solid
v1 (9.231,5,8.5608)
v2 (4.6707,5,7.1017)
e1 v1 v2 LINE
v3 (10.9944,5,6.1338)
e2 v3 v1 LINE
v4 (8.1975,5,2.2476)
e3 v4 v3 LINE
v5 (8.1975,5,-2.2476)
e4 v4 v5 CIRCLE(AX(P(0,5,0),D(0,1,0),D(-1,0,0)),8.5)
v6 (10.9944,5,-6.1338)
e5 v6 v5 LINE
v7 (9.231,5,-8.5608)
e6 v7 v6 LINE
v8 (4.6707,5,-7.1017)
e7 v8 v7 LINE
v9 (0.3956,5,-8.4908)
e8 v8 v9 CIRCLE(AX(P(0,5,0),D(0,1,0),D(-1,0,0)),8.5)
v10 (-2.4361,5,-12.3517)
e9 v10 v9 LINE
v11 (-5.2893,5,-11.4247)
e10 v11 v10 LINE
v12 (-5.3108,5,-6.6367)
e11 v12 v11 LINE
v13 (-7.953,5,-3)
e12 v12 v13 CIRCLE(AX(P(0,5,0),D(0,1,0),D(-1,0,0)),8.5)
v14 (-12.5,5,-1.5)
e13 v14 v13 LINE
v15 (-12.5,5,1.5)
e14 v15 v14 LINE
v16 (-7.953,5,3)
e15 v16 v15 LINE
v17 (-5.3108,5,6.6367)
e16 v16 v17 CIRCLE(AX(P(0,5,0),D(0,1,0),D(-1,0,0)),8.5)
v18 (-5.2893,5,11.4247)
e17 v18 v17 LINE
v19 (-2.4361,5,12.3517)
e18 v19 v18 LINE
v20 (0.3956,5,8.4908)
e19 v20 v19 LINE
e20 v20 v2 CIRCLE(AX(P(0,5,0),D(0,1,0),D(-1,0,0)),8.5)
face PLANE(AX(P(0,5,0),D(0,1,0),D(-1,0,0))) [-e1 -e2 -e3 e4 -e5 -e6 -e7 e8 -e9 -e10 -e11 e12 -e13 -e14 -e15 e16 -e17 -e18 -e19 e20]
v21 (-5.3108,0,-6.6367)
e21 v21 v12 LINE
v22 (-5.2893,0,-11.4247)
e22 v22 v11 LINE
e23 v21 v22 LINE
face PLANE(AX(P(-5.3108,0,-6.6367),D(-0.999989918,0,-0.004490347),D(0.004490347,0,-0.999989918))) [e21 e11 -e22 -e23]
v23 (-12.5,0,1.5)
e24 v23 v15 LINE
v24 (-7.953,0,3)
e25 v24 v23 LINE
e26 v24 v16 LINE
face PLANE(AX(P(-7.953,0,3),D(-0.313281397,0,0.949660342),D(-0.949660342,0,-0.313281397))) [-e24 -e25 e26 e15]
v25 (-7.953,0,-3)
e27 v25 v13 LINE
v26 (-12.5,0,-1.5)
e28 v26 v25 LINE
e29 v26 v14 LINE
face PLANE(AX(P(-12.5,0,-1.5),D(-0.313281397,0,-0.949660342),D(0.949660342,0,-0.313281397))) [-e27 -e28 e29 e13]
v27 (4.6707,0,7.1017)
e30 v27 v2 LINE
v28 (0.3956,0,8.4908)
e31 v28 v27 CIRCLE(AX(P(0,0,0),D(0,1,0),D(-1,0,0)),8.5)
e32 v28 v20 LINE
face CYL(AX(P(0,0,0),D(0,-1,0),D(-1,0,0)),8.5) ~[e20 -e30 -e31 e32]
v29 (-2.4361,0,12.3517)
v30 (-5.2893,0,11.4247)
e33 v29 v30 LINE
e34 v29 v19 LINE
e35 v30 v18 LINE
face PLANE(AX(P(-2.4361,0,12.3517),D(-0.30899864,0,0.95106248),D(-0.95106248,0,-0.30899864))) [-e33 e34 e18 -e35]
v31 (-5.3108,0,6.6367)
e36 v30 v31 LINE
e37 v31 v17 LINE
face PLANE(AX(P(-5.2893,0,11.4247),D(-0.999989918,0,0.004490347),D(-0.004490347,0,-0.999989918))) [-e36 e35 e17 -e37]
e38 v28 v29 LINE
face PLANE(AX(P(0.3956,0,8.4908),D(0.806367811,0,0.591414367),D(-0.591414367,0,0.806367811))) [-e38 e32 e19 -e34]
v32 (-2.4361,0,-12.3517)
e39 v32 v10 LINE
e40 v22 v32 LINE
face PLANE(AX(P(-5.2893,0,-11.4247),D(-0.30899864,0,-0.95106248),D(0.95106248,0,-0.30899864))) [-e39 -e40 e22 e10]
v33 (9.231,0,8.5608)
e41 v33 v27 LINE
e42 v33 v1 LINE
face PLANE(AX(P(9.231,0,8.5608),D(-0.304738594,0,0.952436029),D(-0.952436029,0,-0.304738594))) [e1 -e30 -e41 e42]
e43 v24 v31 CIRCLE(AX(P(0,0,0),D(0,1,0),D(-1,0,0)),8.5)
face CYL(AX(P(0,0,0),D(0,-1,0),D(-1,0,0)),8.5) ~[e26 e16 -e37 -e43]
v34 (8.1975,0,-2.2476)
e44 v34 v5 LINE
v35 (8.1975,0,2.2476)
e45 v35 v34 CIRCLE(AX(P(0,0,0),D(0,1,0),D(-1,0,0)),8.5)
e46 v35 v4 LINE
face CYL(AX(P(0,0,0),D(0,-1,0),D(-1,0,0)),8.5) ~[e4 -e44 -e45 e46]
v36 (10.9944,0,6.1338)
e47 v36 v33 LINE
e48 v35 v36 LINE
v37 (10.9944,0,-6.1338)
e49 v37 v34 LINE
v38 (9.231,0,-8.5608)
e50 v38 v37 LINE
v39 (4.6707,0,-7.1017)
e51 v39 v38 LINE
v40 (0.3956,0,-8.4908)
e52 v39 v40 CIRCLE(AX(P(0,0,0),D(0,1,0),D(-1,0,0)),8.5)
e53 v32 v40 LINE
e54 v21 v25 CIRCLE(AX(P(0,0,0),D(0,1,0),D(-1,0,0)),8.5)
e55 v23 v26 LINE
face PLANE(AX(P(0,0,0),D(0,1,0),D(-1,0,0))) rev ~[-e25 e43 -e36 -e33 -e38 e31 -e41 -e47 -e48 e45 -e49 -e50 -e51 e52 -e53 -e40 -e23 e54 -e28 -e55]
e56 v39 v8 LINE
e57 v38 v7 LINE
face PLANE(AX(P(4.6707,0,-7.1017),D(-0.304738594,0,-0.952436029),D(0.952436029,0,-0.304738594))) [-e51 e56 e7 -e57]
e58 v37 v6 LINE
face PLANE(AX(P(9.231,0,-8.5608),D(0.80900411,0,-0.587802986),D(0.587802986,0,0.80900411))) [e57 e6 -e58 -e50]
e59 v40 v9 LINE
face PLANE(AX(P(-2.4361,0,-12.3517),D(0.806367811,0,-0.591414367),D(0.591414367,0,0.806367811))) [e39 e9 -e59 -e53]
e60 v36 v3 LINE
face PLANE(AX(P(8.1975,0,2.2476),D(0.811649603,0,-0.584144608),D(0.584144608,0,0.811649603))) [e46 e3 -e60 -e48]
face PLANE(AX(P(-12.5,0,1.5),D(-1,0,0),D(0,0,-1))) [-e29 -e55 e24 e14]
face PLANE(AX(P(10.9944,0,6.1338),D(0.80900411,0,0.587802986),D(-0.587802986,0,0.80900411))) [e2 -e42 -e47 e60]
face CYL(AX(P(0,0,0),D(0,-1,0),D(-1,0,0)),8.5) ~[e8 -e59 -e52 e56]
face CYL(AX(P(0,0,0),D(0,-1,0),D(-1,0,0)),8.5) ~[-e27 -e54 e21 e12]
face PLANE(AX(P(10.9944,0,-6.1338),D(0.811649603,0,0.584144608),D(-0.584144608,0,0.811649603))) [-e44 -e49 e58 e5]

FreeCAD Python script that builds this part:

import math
import FreeCAD as App
import Part
import Sketcher
from FreeCAD import Vector
Q = App.Units.Quantity

doc = App.newDocument("Part")
body = doc.addObject("PartDesign::Body", "Body")

sketch1 = doc.addObject("Sketcher::SketchObject", "Sketch")
body.addObject(sketch1)
sketch1.AttachmentSupport = (doc.XZ_Plane, [""])
sketch1.MapMode = "FlatFace"
sketch1.addGeometry([
    Part.ArcOfCircle(Part.Circle(Vector(0, 0, 0), Vector(0, 0, 1), 8.5), math.radians(-159), math.radians(-129)),
    Part.LineSegment(Vector(-8, -3, 0), Vector(-12.5, -1.5, 0)),
    Part.LineSegment(Vector(-12.5, -1.5, 0), Vector(-12.5, 1.5, 0)),
    Part.LineSegment(Vector(-12.5, 1.5, 0), Vector(-8, 3, 0)),
    Part.ArcOfCircle(Part.Circle(Vector(0, 0, 0), Vector(0, 0, 1), 8.5), math.radians(129), math.radians(159)),
    Part.LineSegment(Vector(-5.3, 6.6, 0), Vector(-5.3, 11.4, 0)),
    Part.LineSegment(Vector(-5.3, 11.4, 0), Vector(-2.4, 12.4, 0)),
    Part.LineSegment(Vector(-2.4, 12.4, 0), Vector(0.4, 8.5, 0)),
    Part.ArcOfCircle(Part.Circle(Vector(0, 0, 0), Vector(0, 0, 1), 8.5), math.radians(57), math.radians(87)),
    Part.LineSegment(Vector(4.7, 7.1, 0), Vector(9.2, 8.6, 0)),
    Part.LineSegment(Vector(9.2, 8.6, 0), Vector(11, 6.1, 0)),
    Part.LineSegment(Vector(11, 6.1, 0), Vector(8.2, 2.2, 0)),
    Part.ArcOfCircle(Part.Circle(Vector(0, 0, 0), Vector(0, 0, 1), 8.5), math.radians(-15), math.radians(15)),
    Part.LineSegment(Vector(8.2, -2.2, 0), Vector(11, -6.1, 0)),
    Part.LineSegment(Vector(11, -6.1, 0), Vector(9.2, -8.6, 0)),
    Part.LineSegment(Vector(9.2, -8.6, 0), Vector(4.7, -7.1, 0)),
    Part.ArcOfCircle(Part.Circle(Vector(0, 0, 0), Vector(0, 0, 1), 8.5), math.radians(-87), math.radians(-57)),
    Part.LineSegment(Vector(0.4, -8.5, 0), Vector(-2.4, -12.4, 0)),
    Part.LineSegment(Vector(-2.4, -12.4, 0), Vector(-5.3, -11.4, 0)),
    Part.LineSegment(Vector(-5.3, -11.4, 0), Vector(-5.3, -6.6, 0)),
], False)
sketch1.addConstraint([
    Sketcher.Constraint("Coincident", 0, 1, 1, 1),
    Sketcher.Constraint("Coincident", 1, 2, 2, 1),
    Sketcher.Constraint("Coincident", 2, 2, 3, 1),
    Sketcher.Constraint("Coincident", 3, 2, 4, 2),
    Sketcher.Constraint("Coincident", 4, 1, 5, 1),
    Sketcher.Constraint("Coincident", 5, 2, 6, 1),
    Sketcher.Constraint("Coincident", 6, 2, 7, 1),
    Sketcher.Constraint("Coincident", 7, 2, 8, 2),
    Sketcher.Constraint("Coincident", 8, 1, 9, 1),
    Sketcher.Constraint("Coincident", 9, 2, 10, 1),
    Sketcher.Constraint("Coincident", 10, 2, 11, 1),
    Sketcher.Constraint("Coincident", 11, 2, 12, 2),
    Sketcher.Constraint("Coincident", 12, 1, 13, 1),
    Sketcher.Constraint("Coincident", 13, 2, 14, 1),
    Sketcher.Constraint("Coincident", 14, 2, 15, 1),
    Sketcher.Constraint("Coincident", 15, 2, 16, 2),
    Sketcher.Constraint("Coincident", 16, 1, 17, 1),
    Sketcher.Constraint("Coincident", 17, 2, 18, 1),
    Sketcher.Constraint("Coincident", 18, 2, 19, 1),
    Sketcher.Constraint("Coincident", 19, 2, 0, 2),
    Sketcher.Constraint("Vertical", 2),
    Sketcher.Constraint("Coincident", 0, 3, -1, 1),
    Sketcher.Constraint("Coincident", 4, 3, -1, 1),
    Sketcher.Constraint("Coincident", 8, 3, -1, 1),
    Sketcher.Constraint("Coincident", 12, 3, -1, 1),
    Sketcher.Constraint("Coincident", 16, 3, -1, 1),
    Sketcher.Constraint("Equal", 0, 4),
    Sketcher.Constraint("Equal", 4, 8),
    Sketcher.Constraint("Equal", 8, 12),
    Sketcher.Constraint("Equal", 12, 16),
    Sketcher.Constraint("Symmetric", 10, 2, 13, 2, -1),
    Sketcher.Constraint("Symmetric", 9, 2, 14, 2, -1),
    Sketcher.Constraint("Symmetric", 6, 2, 17, 2, -1),
    Sketcher.Constraint("Symmetric", 5, 2, 18, 2, -1),
    Sketcher.Constraint("Vertical", 0, 1, 3, 2),
    Sketcher.Constraint("Vertical", 11, 2, 12, 1),
    Sketcher.Constraint("Vertical", 8, 1, 15, 2),
    Sketcher.Constraint("Vertical", 7, 2, 16, 1),
    Sketcher.Constraint("Vertical", 4, 1, 19, 2),
    Sketcher.Constraint("Equal", 1, 3),
    Sketcher.Constraint("Equal", 3, 5),
    Sketcher.Constraint("Equal", 5, 7),
    Sketcher.Constraint("Equal", 7, 9),
    Sketcher.Constraint("Equal", 6, 10),
    Sketcher.Constraint("Equal", 9, 11),
    Sketcher.Constraint("Radius", 0, 8.5),
    Sketcher.Constraint("DistanceY", 2, 1, 2, 2, 3.0),
    Sketcher.Constraint("Distance", 6, 3.0),
    Sketcher.Constraint("DistanceY", 0, 1, -1, 1, 3.0),
    Sketcher.Constraint("Angle", 6, Q("17.999 deg")),
    Sketcher.Constraint("DistanceX", 1, 2, -1, 1, 12.5),
    Sketcher.Constraint("DistanceY", 7, 2, 9, 2, 0.07),
    Sketcher.Constraint("DistanceY", 17, 2, 15, 2, 5.25),
    Sketcher.Constraint("DistanceX", 18, 2, 15, 2, 9.96),
    Sketcher.Constraint("DistanceX", 6, 2, -1, 1, 2.436),
    Sketcher.Constraint("DistanceY", 10, 2, 9, 2, 2.427),
])
pad1 = doc.addObject("PartDesign::Pad", "Pad")
body.addObject(pad1)
pad1.Profile = sketch1
pad1.Length = 5
pad1.Reversed = True

doc.recompute()
